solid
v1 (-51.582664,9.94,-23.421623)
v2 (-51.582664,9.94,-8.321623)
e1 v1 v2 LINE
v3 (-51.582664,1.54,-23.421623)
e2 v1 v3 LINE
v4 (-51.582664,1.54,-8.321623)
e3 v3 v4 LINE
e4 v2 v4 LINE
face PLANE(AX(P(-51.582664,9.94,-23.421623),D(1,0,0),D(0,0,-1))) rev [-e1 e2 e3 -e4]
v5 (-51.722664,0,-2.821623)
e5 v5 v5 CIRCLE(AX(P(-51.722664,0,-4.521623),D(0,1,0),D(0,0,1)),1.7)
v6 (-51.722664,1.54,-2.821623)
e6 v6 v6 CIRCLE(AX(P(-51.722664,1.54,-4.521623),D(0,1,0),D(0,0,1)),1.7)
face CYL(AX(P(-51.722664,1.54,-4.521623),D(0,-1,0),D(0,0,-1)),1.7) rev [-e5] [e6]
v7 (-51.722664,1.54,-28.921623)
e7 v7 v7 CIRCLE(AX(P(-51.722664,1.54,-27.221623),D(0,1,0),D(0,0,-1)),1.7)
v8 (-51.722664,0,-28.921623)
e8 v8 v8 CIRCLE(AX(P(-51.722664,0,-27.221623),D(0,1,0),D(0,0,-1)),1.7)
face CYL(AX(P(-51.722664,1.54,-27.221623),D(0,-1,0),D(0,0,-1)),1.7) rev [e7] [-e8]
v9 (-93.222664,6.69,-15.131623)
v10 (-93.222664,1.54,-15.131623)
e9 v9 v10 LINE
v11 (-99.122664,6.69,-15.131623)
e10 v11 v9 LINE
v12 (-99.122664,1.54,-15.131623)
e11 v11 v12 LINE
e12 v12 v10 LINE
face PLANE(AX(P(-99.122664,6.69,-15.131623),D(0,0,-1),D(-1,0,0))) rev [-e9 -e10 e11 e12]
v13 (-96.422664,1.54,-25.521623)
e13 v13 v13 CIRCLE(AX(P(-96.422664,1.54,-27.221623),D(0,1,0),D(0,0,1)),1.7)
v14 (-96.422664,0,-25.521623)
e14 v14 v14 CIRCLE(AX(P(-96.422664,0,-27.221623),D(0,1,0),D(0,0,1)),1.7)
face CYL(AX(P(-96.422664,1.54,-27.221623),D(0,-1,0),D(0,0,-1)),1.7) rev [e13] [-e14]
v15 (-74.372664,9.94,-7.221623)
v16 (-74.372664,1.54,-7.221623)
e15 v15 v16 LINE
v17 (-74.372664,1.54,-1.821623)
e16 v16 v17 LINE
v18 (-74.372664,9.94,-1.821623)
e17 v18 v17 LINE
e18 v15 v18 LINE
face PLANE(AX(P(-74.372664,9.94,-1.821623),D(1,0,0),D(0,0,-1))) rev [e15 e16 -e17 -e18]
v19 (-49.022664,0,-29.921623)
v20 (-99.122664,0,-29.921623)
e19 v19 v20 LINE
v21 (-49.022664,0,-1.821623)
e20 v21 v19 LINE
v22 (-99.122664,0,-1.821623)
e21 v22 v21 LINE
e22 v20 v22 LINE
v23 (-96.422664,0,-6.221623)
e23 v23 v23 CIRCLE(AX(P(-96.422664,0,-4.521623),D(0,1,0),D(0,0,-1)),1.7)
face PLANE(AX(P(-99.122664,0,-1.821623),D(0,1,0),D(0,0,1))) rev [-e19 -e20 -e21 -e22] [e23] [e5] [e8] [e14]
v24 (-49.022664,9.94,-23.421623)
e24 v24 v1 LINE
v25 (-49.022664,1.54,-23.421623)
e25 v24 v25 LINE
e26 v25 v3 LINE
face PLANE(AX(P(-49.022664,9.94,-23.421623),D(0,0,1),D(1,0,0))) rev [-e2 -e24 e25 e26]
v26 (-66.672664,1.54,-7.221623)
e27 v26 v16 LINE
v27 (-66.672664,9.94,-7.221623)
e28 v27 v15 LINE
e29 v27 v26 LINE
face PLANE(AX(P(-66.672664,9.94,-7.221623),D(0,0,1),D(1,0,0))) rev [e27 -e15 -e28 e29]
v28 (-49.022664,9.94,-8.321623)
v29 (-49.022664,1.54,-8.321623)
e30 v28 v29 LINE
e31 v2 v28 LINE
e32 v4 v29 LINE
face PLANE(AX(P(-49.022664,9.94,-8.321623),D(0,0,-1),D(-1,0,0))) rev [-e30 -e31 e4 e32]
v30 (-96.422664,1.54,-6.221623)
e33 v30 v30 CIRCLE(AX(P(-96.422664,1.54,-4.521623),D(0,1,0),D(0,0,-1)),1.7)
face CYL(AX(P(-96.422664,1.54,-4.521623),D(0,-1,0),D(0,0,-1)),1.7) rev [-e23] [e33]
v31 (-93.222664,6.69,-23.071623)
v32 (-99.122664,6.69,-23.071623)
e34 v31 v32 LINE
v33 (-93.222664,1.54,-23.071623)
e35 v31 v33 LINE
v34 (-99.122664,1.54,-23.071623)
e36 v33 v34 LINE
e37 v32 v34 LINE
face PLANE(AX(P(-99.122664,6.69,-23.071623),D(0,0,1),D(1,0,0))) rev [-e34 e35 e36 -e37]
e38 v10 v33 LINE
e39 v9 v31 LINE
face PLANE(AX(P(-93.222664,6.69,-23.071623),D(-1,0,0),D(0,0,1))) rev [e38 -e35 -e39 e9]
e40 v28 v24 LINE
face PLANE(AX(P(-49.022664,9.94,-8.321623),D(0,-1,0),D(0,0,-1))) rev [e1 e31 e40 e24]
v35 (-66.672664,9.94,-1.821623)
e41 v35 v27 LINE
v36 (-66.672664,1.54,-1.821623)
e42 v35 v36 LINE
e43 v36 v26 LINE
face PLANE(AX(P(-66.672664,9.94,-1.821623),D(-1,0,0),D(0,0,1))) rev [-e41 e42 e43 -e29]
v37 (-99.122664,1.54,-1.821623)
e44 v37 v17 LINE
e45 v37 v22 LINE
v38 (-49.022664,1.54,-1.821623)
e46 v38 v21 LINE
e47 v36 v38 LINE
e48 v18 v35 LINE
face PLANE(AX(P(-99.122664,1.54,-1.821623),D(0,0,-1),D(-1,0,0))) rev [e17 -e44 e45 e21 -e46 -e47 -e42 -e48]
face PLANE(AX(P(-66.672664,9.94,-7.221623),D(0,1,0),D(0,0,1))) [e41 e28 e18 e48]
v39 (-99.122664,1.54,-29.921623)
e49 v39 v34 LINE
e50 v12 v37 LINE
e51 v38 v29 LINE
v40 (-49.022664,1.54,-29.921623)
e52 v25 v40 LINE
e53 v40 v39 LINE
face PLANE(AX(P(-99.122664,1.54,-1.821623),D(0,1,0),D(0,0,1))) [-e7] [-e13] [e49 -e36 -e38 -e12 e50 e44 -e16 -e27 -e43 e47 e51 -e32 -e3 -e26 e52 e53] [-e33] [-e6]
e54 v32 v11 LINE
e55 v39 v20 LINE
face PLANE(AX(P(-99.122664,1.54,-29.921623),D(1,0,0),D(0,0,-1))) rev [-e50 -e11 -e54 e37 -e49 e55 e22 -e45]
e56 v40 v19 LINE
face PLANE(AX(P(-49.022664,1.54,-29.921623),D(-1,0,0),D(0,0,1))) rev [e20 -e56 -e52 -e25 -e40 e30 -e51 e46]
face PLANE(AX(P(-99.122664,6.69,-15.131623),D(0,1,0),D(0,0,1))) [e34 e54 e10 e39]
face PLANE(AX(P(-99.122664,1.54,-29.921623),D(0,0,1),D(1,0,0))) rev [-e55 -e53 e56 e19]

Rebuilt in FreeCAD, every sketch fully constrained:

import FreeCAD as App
import Part
import Sketcher
from FreeCAD import Vector
Q = App.Units.Quantity

doc = App.newDocument("Part")
body = doc.addObject("PartDesign::Body", "Body")

sketch1 = doc.addObject("Sketcher::SketchObject", "Sketch")
body.addObject(sketch1)
sketch1.AttachmentSupport = (doc.XZ_Plane, [""])
sketch1.MapMode = "FlatFace"
sketch1.addGeometry([
    Part.LineSegment(Vector(-99.1, -29.9, 0), Vector(-99.1, -1.8, 0)),
    Part.LineSegment(Vector(-99.1, -1.8, 0), Vector(-49, -1.8, 0)),
    Part.LineSegment(Vector(-49, -1.8, 0), Vector(-49, -29.9, 0)),
    Part.LineSegment(Vector(-49, -29.9, 0), Vector(-99.1, -29.9, 0)),
    Part.Circle(Vector(-96.4, -4.5, 0), Vector(0, 0, 1), 1.7),
    Part.Circle(Vector(-51.7, -4.5, 0), Vector(0, 0, 1), 1.7),
    Part.Circle(Vector(-96.4, -27.2, 0), Vector(0, 0, 1), 1.7),
    Part.Circle(Vector(-51.7, -27.2, 0), Vector(0, 0, 1), 1.7),
], False)
sketch1.addConstraint([
    Sketcher.Constraint("Coincident", 0, 2, 1, 1),
    Sketcher.Constraint("Coincident", 1, 2, 2, 1),
    Sketcher.Constraint("Coincident", 2, 2, 3, 1),
    Sketcher.Constraint("Coincident", 3, 2, 0, 1),
    Sketcher.Constraint("Vertical", 0),
    Sketcher.Constraint("Horizontal", 1),
    Sketcher.Constraint("Vertical", 2),
    Sketcher.Constraint("Horizontal", 3),
    Sketcher.Constraint("Equal", 4, 5),
    Sketcher.Constraint("Equal", 5, 6),
    Sketcher.Constraint("Equal", 6, 7),
    Sketcher.Constraint("Horizontal", 4, 3, 5, 3),
    Sketcher.Constraint("Horizontal", 6, 3, 7, 3),
    Sketcher.Constraint("Vertical", 4, 3, 6, 3),
    Sketcher.Constraint("Vertical", 5, 3, 7, 3),
    Sketcher.Constraint("Diameter", 4, Q("3.4 mm")),
    Sketcher.Constraint("DistanceX", 1, 1, 1, 2, Q("50.1 mm")),
    Sketcher.Constraint("DistanceY", 0, 1, 0, 2, Q("28.1 mm")),
    Sketcher.Constraint("DistanceX", 4, 3, 5, 3, Q("44.7 mm")),
    Sketcher.Constraint("DistanceY", 6, 3, 4, 3, Q("22.7 mm")),
    Sketcher.Constraint("DistanceX", 0, 2, 4, 3, Q("2.7 mm")),
    Sketcher.Constraint("DistanceY", 4, 3, 0, 2, Q("2.7 mm")),
    Sketcher.Constraint("DistanceX", 4, 3, -1, 1, Q("96.422664 mm")),
    Sketcher.Constraint("DistanceY", 4, 3, -1, 1, Q("4.521623 mm")),
])
pad1 = doc.addObject("PartDesign::Pad", "Pad")
body.addObject(pad1)
pad1.Profile = sketch1
pad1.Length = 1.54
pad1.Reversed = True

sketch2 = doc.addObject("Sketcher::SketchObject", "Sketch001")
body.addObject(sketch2)
sketch2.AttachmentSupport = (doc.XZ_Plane, [""])
sketch2.MapMode = "FlatFace"
sketch2.AttachmentOffset = App.Placement(Vector(0, 0, -1.54), App.Rotation())
sketch2.addGeometry([
    Part.LineSegment(Vector(-51.6, -23.4, 0), Vector(-51.6, -8.3, 0)),
    Part.LineSegment(Vector(-51.6, -8.3, 0), Vector(-49, -8.3, 0)),
    Part.LineSegment(Vector(-49, -8.3, 0), Vector(-49, -23.4, 0)),
    Part.LineSegment(Vector(-49, -23.4, 0), Vector(-51.6, -23.4, 0)),
    Part.LineSegment(Vector(-74.4, -7.2, 0), Vector(-74.4, -1.8, 0)),
    Part.LineSegment(Vector(-74.4, -1.8, 0), Vector(-66.7, -1.8, 0)),
    Part.LineSegment(Vector(-66.7, -1.8, 0), Vector(-66.7, -7.2, 0)),
    Part.LineSegment(Vector(-66.7, -7.2, 0), Vector(-74.4, -7.2, 0)),
], False)
sketch2.addConstraint([
    Sketcher.Constraint("Coincident", 0, 2, 1, 1),
    Sketcher.Constraint("Coincident", 1, 2, 2, 1),
    Sketcher.Constraint("Coincident", 2, 2, 3, 1),
    Sketcher.Constraint("Coincident", 3, 2, 0, 1),
    Sketcher.Constraint("Coincident", 4, 2, 5, 1),
    Sketcher.Constraint("Coincident", 5, 2, 6, 1),
    Sketcher.Constraint("Coincident", 6, 2, 7, 1),
    Sketcher.Constraint("Coincident", 7, 2, 4, 1),
    Sketcher.Constraint("Vertical", 0),
    Sketcher.Constraint("Horizontal", 1),
    Sketcher.Constraint("Vertical", 2),
    Sketcher.Constraint("Horizontal", 3),
    Sketcher.Constraint("Vertical", 4),
    Sketcher.Constraint("Horizontal", 5),
    Sketcher.Constraint("Vertical", 6),
    Sketcher.Constraint("Horizontal", 7),
    Sketcher.Constraint("DistanceX", 5, 1, 5, 2, Q("7.7 mm")),
    Sketcher.Constraint("DistanceY", 0, 1, 0, 2, Q("15.1 mm")),
    Sketcher.Constraint("DistanceY", 4, 1, 4, 2, Q("5.4 mm")),
    Sketcher.Constraint("DistanceX", 1, 1, 1, 2, Q("2.56 mm")),
    Sketcher.Constraint("DistanceY", 0, 2, 4, 2, Q("6.5 mm")),
    Sketcher.Constraint("DistanceX", 4, 2, 0, 2, Q("22.79 mm")),
    Sketcher.Constraint("DistanceX", 0, 2, -1, 1, Q("51.582664 mm")),
    Sketcher.Constraint("DistanceY", 0, 2, -1, 1, Q("8.321623 mm")),
])
pad2 = doc.addObject("PartDesign::Pad", "Pad001")
body.addObject(pad2)
pad2.Profile = sketch2
pad2.Length = 8.4
pad2.Reversed = True

sketch3 = doc.addObject("Sketcher::SketchObject", "Sketch002")
body.addObject(sketch3)
sketch3.AttachmentSupport = (doc.XZ_Plane, [""])
sketch3.MapMode = "FlatFace"
sketch3.AttachmentOffset = App.Placement(Vector(0, 0, -1.54), App.Rotation())
sketch3.addGeometry([
    Part.LineSegment(Vector(-99, -23, 0), Vector(-99, -15, 0)),
    Part.LineSegment(Vector(-99, -15, 0), Vector(-93, -15, 0)),
    Part.LineSegment(Vector(-93, -15, 0), Vector(-93, -23, 0)),
    Part.LineSegment(Vector(-93, -23, 0), Vector(-99, -23, 0)),
], False)
sketch3.addConstraint([
    Sketcher.Constraint("Coincident", 0, 2, 1, 1),
    Sketcher.Constraint("Coincident", 1, 2, 2, 1),
    Sketcher.Constraint("Coincident", 2, 2, 3, 1),
    Sketcher.Constraint("Coincident", 3, 2, 0, 1),
    Sketcher.Constraint("Vertical", 0),
    Sketcher.Constraint("Horizontal", 1),
    Sketcher.Constraint("Vertical", 2),
    Sketcher.Constraint("Horizontal", 3),
    Sketcher.Constraint("DistanceX", 1, 1, 1, 2, Q("5.9 mm")),
    Sketcher.Constraint("DistanceY", 0, 1, 0, 2, Q("7.94 mm")),
    Sketcher.Constraint("DistanceX", 0, 2, -1, 1, Q("99.122664 mm")),
    Sketcher.Constraint("DistanceY", 0, 2, -1, 1, Q("15.131623 mm")),
])
pad3 = doc.addObject("PartDesign::Pad", "Pad002")
body.addObject(pad3)
pad3.Profile = sketch3
pad3.Length = 5.15
pad3.Reversed = True

doc.recompute()
